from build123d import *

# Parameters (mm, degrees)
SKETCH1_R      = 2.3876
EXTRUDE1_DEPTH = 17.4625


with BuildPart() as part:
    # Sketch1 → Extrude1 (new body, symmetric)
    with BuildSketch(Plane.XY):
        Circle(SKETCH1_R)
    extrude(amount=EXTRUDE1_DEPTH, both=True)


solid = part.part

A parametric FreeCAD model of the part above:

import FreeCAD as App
import Part
import Sketcher
Q = App.Units.Quantity

doc = App.newDocument("Part")
body = doc.addObject("PartDesign::Body", "Body")

# Sketch on XY plane
sketch1 = doc.addObject("Sketcher::SketchObject", "Sketch")
body.addObject(sketch1)
sketch1.AttachmentSupport = (doc.XY_Plane, [""])
sketch1.MapMode = "FlatFace"
sketch1.addGeometry(Part.Circle(App.Vector(0, 0, 0), App.Vector(0, 0, 1), 2.3876), False)
sketch1.addConstraint([
    Sketcher.Constraint("Coincident", 0, 3, -1, 1),
    Sketcher.Constraint("Diameter", 0, Q("0.188 in")),
])
pad1 = doc.addObject("PartDesign::Pad", "Pad")
body.addObject(pad1)
pad1.Profile = sketch1
pad1.Length = Q("1.375 in")
pad1.Midplane = True

doc.recompute()
